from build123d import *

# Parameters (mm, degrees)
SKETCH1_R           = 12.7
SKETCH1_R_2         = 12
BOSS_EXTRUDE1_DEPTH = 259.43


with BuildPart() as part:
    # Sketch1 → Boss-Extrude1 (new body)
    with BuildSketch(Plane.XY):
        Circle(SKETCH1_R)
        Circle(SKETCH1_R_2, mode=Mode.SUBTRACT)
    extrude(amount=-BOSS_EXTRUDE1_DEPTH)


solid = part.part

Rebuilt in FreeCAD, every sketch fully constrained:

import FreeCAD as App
import Part
import Sketcher

doc = App.newDocument("Part")
body = doc.addObject("PartDesign::Body", "Body")

# Sketch on XY plane
sketch1 = doc.addObject("Sketcher::SketchObject", "Sketch")
body.addObject(sketch1)
sketch1.AttachmentSupport = (doc.XY_Plane, [""])
sketch1.MapMode = "FlatFace"
sketch1.addGeometry([
    Part.Circle(App.Vector(0, 0, 0), App.Vector(0, 0, 1), 13),
    Part.Circle(App.Vector(0, 0, 0), App.Vector(0, 0, 1), 12),
], False)
sketch1.addConstraint([
    Sketcher.Constraint("Coincident", 0, 3, -1, 1),
    Sketcher.Constraint("Coincident", 1, 3, -1, 1),
    Sketcher.Constraint("Diameter", 1, 24.0),
    Sketcher.Constraint("Diameter", 0, 25.4),
])
pad1 = doc.addObject("PartDesign::Pad", "Pad")
body.addObject(pad1)
pad1.Profile = sketch1
pad1.Length = 259.43
pad1.Reversed = True

doc.recompute()
